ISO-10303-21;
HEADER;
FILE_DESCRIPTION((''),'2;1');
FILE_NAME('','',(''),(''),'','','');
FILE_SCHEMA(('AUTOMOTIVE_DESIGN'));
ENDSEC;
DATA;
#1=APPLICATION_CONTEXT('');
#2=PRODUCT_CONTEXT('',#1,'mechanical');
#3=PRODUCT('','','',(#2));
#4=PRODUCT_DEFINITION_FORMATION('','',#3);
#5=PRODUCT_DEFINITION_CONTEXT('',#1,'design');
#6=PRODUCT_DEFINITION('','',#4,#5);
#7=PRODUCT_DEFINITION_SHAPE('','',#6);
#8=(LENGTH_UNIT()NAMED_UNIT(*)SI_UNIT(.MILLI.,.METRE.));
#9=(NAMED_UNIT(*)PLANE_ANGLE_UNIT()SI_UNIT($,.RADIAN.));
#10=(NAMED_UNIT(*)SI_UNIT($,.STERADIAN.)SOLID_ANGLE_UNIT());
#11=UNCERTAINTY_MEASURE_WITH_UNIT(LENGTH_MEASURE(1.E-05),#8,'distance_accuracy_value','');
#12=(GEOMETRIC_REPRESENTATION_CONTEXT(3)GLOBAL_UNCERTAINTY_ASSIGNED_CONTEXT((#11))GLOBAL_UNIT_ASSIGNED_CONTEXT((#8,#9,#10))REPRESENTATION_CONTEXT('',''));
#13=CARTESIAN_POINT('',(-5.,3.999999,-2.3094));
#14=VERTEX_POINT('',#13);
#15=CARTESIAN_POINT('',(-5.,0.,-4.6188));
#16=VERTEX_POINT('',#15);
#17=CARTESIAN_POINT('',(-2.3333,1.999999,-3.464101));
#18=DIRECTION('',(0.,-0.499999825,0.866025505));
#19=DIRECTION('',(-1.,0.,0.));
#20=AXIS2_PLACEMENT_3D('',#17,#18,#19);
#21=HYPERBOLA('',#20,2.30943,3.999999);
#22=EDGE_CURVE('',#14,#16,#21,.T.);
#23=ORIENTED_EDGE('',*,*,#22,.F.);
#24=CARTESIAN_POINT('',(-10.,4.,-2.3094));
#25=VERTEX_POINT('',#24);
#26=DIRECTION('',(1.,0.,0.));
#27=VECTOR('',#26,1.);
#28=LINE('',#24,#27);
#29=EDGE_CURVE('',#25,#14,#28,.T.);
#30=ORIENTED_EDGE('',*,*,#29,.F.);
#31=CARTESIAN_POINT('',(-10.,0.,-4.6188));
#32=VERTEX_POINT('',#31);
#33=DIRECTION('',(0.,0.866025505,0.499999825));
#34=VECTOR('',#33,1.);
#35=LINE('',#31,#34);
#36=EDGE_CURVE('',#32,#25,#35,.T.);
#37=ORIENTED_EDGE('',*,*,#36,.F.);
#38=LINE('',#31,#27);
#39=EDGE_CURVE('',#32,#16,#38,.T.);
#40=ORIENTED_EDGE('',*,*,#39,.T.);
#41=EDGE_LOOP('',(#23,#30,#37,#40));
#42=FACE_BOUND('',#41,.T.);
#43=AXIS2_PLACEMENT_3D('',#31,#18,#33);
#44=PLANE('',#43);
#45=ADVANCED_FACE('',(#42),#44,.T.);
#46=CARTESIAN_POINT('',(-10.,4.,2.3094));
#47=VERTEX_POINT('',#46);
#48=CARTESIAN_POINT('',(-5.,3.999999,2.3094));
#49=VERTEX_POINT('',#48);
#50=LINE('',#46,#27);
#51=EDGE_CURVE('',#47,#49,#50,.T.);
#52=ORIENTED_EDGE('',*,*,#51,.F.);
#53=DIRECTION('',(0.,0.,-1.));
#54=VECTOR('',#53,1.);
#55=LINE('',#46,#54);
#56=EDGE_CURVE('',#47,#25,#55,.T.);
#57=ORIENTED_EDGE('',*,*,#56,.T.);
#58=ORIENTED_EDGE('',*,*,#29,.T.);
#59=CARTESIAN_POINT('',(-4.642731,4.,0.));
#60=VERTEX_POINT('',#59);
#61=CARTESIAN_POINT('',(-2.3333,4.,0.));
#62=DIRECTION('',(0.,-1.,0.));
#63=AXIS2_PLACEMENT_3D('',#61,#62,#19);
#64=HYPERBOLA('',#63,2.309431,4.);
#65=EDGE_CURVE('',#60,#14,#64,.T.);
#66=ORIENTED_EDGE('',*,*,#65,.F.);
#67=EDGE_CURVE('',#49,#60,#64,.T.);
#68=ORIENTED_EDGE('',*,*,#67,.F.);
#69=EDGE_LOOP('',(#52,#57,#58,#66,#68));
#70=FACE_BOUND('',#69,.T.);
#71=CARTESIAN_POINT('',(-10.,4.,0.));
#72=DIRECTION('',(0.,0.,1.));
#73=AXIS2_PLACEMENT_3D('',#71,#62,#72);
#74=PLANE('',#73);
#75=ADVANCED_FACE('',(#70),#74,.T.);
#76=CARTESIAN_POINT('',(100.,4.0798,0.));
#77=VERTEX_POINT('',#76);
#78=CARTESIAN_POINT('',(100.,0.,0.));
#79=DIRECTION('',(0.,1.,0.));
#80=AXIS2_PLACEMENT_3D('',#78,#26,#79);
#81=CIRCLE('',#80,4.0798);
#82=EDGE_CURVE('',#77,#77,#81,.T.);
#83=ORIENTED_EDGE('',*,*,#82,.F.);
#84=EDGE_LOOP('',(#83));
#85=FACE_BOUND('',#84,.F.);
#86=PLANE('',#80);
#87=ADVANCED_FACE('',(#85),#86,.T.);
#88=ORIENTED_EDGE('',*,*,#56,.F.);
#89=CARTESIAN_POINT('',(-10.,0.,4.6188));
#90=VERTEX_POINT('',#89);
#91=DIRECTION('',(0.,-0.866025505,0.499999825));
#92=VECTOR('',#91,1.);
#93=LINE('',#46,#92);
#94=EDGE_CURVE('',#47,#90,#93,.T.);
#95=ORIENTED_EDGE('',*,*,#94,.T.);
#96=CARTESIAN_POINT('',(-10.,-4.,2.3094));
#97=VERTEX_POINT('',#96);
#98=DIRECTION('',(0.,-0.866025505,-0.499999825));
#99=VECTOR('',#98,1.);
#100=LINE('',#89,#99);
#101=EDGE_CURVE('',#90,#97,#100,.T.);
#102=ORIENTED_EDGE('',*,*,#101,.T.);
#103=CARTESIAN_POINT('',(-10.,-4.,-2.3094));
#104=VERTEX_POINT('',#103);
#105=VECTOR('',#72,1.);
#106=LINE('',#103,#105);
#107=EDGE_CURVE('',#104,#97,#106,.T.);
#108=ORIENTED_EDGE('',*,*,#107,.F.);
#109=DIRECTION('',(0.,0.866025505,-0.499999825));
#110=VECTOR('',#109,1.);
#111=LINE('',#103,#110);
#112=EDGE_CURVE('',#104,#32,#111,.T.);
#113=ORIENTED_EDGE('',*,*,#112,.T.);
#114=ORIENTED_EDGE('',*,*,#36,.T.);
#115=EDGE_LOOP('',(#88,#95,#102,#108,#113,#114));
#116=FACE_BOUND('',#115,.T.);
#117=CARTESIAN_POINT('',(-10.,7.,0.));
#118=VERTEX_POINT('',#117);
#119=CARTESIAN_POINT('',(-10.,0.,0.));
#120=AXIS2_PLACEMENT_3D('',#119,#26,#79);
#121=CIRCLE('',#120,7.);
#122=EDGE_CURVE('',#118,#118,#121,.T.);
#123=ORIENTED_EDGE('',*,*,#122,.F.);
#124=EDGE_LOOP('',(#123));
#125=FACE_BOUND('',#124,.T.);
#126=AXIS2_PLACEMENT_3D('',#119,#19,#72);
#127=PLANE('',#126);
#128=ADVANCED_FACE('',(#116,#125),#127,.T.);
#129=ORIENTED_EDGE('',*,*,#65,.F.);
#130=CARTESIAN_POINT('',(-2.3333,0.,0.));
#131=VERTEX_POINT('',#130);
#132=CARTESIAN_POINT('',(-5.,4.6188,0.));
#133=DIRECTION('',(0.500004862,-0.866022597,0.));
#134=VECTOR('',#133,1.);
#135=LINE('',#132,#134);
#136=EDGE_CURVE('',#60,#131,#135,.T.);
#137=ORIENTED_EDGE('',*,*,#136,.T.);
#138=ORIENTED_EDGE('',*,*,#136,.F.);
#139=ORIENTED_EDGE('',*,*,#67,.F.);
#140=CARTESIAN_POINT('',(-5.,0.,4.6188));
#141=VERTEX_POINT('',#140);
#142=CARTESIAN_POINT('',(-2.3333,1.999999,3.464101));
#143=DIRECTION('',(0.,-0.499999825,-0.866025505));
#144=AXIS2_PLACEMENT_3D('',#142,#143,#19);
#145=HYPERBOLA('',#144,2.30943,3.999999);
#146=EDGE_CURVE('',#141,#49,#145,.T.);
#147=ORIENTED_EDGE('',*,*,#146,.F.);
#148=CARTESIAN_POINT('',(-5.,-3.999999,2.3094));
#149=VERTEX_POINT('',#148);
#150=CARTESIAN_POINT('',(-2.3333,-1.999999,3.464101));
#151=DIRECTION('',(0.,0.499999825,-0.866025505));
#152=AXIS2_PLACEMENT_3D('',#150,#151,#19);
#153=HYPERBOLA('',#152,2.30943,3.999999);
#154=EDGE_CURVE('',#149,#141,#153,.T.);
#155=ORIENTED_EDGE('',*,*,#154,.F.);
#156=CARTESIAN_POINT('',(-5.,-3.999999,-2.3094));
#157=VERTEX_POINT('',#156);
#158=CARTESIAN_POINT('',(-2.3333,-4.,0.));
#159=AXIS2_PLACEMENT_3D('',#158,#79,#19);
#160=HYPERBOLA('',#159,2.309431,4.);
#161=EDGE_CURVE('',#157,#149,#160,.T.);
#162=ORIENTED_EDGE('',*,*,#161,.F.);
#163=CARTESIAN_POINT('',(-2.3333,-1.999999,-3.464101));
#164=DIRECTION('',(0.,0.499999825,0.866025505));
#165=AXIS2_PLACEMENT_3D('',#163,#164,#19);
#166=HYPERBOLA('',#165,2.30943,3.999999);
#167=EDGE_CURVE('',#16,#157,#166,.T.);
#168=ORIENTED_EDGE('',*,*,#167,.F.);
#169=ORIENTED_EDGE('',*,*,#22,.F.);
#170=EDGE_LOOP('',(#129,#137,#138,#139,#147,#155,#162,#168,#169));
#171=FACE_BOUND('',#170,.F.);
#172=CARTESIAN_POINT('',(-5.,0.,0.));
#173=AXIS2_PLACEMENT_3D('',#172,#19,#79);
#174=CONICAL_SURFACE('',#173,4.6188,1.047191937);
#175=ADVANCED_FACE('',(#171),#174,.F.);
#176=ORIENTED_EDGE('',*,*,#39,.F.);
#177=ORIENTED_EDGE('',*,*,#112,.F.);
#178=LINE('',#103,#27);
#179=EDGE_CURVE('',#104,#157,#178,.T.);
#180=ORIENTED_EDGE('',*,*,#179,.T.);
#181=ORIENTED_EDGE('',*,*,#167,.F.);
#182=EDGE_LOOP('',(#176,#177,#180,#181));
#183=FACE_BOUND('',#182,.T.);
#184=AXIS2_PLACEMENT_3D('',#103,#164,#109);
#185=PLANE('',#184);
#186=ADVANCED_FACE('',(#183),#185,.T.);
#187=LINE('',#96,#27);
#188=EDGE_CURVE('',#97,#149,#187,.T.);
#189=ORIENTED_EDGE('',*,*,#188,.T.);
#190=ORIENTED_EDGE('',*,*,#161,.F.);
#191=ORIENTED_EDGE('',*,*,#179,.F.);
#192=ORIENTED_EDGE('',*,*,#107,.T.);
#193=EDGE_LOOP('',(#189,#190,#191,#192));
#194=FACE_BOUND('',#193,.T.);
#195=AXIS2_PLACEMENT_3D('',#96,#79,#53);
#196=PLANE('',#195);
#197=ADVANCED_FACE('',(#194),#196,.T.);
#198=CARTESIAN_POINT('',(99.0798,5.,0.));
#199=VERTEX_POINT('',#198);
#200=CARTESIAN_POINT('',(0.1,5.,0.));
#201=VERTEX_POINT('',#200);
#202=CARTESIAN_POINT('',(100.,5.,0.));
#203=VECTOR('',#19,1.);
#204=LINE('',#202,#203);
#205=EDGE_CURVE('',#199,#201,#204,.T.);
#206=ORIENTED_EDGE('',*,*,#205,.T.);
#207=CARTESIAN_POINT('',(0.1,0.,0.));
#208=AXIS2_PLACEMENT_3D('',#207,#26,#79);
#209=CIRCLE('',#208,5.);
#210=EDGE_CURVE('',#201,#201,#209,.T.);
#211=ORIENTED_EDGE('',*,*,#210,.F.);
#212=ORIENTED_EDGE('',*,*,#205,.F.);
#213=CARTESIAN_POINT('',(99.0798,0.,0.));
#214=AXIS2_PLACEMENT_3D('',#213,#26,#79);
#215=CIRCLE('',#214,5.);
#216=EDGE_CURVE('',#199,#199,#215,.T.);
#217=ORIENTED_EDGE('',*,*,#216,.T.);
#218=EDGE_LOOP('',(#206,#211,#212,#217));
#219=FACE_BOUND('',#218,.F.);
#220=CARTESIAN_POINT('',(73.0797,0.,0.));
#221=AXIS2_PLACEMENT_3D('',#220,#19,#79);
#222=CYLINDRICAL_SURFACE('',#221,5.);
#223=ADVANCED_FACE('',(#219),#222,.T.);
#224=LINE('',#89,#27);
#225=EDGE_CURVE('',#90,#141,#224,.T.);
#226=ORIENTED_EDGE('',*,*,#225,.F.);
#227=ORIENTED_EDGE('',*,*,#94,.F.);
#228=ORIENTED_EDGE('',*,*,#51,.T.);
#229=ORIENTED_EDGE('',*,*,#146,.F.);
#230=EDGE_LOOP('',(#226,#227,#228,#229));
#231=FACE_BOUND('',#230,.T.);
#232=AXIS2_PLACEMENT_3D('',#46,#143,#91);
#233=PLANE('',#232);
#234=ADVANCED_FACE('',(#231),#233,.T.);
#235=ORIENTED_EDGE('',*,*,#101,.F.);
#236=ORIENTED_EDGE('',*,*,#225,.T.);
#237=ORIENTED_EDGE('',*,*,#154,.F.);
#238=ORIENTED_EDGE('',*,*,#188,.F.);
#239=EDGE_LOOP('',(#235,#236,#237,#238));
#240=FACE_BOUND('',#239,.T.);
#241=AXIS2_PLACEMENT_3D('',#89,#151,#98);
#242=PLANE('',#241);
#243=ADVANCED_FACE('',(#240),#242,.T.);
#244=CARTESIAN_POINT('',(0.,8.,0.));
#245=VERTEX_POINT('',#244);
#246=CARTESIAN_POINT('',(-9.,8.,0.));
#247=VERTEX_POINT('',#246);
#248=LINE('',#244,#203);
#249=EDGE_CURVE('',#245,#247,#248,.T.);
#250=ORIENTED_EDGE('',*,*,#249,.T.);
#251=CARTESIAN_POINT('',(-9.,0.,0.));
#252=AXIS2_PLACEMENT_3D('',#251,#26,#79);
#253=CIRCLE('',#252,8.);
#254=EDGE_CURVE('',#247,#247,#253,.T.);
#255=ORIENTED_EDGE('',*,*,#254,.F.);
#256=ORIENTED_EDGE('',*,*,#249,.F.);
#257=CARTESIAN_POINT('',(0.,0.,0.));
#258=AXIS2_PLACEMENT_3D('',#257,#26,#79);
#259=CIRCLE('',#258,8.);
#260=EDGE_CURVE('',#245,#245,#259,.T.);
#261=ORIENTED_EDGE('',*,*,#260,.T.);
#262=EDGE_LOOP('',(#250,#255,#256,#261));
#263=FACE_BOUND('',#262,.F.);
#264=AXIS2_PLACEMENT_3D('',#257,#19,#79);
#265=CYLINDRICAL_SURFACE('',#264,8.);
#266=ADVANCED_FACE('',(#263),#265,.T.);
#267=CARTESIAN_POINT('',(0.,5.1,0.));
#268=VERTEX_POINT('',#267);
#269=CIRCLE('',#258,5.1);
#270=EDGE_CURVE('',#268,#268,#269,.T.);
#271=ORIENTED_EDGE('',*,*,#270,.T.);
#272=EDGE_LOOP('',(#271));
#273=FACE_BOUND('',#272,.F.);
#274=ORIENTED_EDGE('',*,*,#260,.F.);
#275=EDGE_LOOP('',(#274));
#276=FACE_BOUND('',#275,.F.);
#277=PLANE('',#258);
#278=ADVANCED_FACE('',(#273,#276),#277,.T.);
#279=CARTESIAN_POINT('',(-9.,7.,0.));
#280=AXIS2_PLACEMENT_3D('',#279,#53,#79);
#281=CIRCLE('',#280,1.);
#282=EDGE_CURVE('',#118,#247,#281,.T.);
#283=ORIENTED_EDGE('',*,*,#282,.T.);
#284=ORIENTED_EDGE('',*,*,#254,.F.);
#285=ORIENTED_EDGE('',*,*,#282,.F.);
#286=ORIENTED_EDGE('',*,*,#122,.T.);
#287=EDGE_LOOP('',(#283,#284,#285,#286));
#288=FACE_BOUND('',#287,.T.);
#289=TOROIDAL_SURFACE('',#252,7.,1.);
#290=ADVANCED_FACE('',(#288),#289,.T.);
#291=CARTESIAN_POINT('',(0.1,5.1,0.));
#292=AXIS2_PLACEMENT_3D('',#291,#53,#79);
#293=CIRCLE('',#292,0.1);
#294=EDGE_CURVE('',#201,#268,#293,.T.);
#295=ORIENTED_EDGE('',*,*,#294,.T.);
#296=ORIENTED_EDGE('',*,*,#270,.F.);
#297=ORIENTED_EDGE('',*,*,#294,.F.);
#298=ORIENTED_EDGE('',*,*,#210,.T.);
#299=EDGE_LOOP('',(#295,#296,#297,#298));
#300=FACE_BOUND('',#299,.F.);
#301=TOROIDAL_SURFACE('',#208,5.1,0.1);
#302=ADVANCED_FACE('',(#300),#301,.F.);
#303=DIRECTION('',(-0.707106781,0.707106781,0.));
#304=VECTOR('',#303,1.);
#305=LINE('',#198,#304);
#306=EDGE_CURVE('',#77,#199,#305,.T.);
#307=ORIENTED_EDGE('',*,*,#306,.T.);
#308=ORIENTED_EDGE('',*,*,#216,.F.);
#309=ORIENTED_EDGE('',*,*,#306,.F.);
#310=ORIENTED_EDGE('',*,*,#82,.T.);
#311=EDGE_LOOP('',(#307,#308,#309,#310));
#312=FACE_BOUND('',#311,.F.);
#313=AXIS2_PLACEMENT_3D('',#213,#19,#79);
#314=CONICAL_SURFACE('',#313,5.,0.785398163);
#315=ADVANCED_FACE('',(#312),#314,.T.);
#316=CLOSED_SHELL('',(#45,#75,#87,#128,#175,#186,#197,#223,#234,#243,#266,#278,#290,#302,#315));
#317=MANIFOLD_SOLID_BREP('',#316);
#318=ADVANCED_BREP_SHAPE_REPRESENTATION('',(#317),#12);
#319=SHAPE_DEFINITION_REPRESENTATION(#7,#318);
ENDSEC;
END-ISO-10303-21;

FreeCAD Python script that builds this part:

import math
import FreeCAD as App
import Part
import Sketcher

V = App.Vector
Q = App.Units.Quantity


def edges_at(feature, points):
    """Names of the edges that pass closest to the given points."""
    edges = feature.Shape.Edges
    near = lambda p: min(range(len(edges)), key=lambda i: edges[i].distToShape(Part.Vertex(*p))[0])
    return sorted({f"Edge{near(p) + 1}" for p in points})

doc = App.newDocument("Part")
body = doc.addObject("PartDesign::Body", "Body")

# Sketch on XY plane
sketch1 = doc.addObject("Sketcher::SketchObject", "Sketch")
body.addObject(sketch1)
sketch1.AttachmentSupport = (doc.XY_Plane, [""])
sketch1.MapMode = "FlatFace"
sketch1.addGeometry([
    Part.LineSegment(V(-5, 4.6, 0), V(-2.3, 0, 0)),  # 0
    Part.LineSegment(V(-2.3, 0, 0), V(100, 0, 0)),  # 1
    Part.LineSegment(V(100, 0, 0), V(100, 5, 0)),  # 2
    Part.LineSegment(V(100, 5, 0), V(0, 5, 0)),  # 3
    Part.LineSegment(V(0, 5, 0), V(0, 8, 0)),  # 4
    Part.LineSegment(V(0, 8, 0), V(-10, 8, 0)),  # 5
    Part.LineSegment(V(-10, 8, 0), V(-10, 4.6, 0)),  # 6
    Part.LineSegment(V(-10, 4.6, 0), V(-5, 4.6, 0)),  # 7
], False)
sketch1.addConstraint([
    Sketcher.Constraint("Coincident", 0, 2, 1, 1),
    Sketcher.Constraint("Coincident", 1, 2, 2, 1),
    Sketcher.Constraint("Coincident", 2, 2, 3, 1),
    Sketcher.Constraint("Coincident", 3, 2, 4, 1),
    Sketcher.Constraint("Coincident", 4, 2, 5, 1),
    Sketcher.Constraint("Coincident", 5, 2, 6, 1),
    Sketcher.Constraint("Coincident", 6, 2, 7, 1),
    Sketcher.Constraint("Coincident", 7, 2, 0, 1),
    Sketcher.Constraint("Horizontal", 1),
    Sketcher.Constraint("Vertical", 2),
    Sketcher.Constraint("Horizontal", 3),
    Sketcher.Constraint("Vertical", 4),
    Sketcher.Constraint("Horizontal", 5),
    Sketcher.Constraint("Vertical", 6),
    Sketcher.Constraint("Horizontal", 7),
    Sketcher.Constraint("PointOnObject", 0, 2, -1),
    Sketcher.Constraint("PointOnObject", 3, 2, -2),
    Sketcher.Constraint("Equal", 7, 2),
    Sketcher.Constraint("DistanceX", 3, 2, 3, 1, Q("100 mm")),
    Sketcher.Constraint("DistanceX", 5, 2, 5, 1, Q("10 mm")),
    Sketcher.Constraint("DistanceX", 7, 1, 7, 2, Q("5 mm")),
    Sketcher.Constraint("Angle", 0, Q("-59.9997 deg")),
    Sketcher.Constraint("DistanceY", 4, 1, 4, 2, Q("3 mm")),
    Sketcher.Constraint("DistanceX", 1, 1, 1, 2, Q("102.3333 mm")),
])
revolution = doc.addObject("PartDesign::Revolution", "Revolution")
body.addObject(revolution)
revolution.Profile = sketch1
revolution.ReferenceAxis = (sketch1, ["H_Axis"])
revolution.Angle = 360

# Sketch on YZ plane
sketch2 = doc.addObject("Sketcher::SketchObject", "Sketch001")
body.addObject(sketch2)
sketch2.AttachmentSupport = (doc.YZ_Plane, [""])
sketch2.MapMode = "FlatFace"
sketch2.AttachmentOffset = App.Placement(V(0, 0, -10), App.Rotation())
sketch2.addGeometry([
    Part.LineSegment(V(4, 2.3, 0), V(0, 4.6, 0)),  # 0
    Part.ArcOfCircle(Part.Circle(V(0, 0, 0), V(0, 0, 1), 4.6), math.radians(30), math.radians(90)),  # 1
    Part.ArcOfCircle(Part.Circle(V(0, 0, 0), V(0, 0, 1), 4.6), math.radians(90), math.radians(150)),  # 2
    Part.LineSegment(V(0, 4.6, 0), V(-4, 2.3, 0)),  # 3
    Part.ArcOfCircle(Part.Circle(V(0, 0, 0), V(0, 0, 1), 4.6), math.radians(-30), math.radians(30)),  # 4
    Part.LineSegment(V(4, 2.3, 0), V(4, -2.3, 0)),  # 5
    Part.LineSegment(V(-4, 2.3, 0), V(-4, -2.3, 0)),  # 6
    Part.ArcOfCircle(Part.Circle(V(0, 0, 0), V(0, 0, 1), 4.6), math.radians(150), math.radians(210)),  # 7
    Part.LineSegment(V(-4, -2.3, 0), V(0, -4.6, 0)),  # 8
    Part.ArcOfCircle(Part.Circle(V(0, 0, 0), V(0, 0, 1), 4.6), math.radians(-150), math.radians(-90)),  # 9
    Part.ArcOfCircle(Part.Circle(V(0, 0, 0), V(0, 0, 1), 4.6), math.radians(-90), math.radians(-30)),  # 10
    Part.LineSegment(V(0, -4.6, 0), V(4, -2.3, 0)),  # 11
], False)
sketch2.addConstraint([
    Sketcher.Constraint("Coincident", 0, 1, 1, 1),
    Sketcher.Constraint("Coincident", 1, 2, 0, 2),
    Sketcher.Constraint("Coincident", 2, 1, 3, 1),
    Sketcher.Constraint("Coincident", 3, 2, 2, 2),
    Sketcher.Constraint("Coincident", 4, 1, 5, 2),
    Sketcher.Constraint("Coincident", 5, 1, 4, 2),
    Sketcher.Constraint("Coincident", 6, 1, 7, 1),
    Sketcher.Constraint("Coincident", 7, 2, 6, 2),
    Sketcher.Constraint("Coincident", 8, 1, 9, 1),
    Sketcher.Constraint("Coincident", 9, 2, 8, 2),
    Sketcher.Constraint("Coincident", 10, 1, 11, 1),
    Sketcher.Constraint("Coincident", 11, 2, 10, 2),
    Sketcher.Constraint("Vertical", 5),
    Sketcher.Constraint("Vertical", 6),
    Sketcher.Constraint("Coincident", 1, 3, -1, 1),
    Sketcher.Constraint("Coincident", 2, 3, -1, 1),
    Sketcher.Constraint("Coincident", 4, 3, -1, 1),
    Sketcher.Constraint("Coincident", 7, 3, -1, 1),
    Sketcher.Constraint("Coincident", 9, 3, -1, 1),
    Sketcher.Constraint("Coincident", 10, 3, -1, 1),
    Sketcher.Constraint("Coincident", 2, 1, 1, 2),
    Sketcher.Constraint("Coincident", 5, 1, 0, 1),
    Sketcher.Constraint("Coincident", 6, 1, 3, 2),
    Sketcher.Constraint("Coincident", 8, 1, 7, 2),
    Sketcher.Constraint("Coincident", 10, 1, 9, 2),
    Sketcher.Constraint("PointOnObject", 1, 2, -2),
    Sketcher.Constraint("PointOnObject", 9, 2, -2),
    Sketcher.Constraint("Parallel", 0, 8),
    Sketcher.Constraint("Parallel", 3, 11),
    Sketcher.Constraint("Angle", 0, Q("150 deg")),
    Sketcher.Constraint("DistanceX", -1, 1, 0, 1, Q("4 mm")),
])
pad1 = doc.addObject("PartDesign::Pad", "Pad")
body.addObject(pad1)
pad1.Profile = sketch2
pad1.Type = "UpToFirst"
doc.recompute()

fillet = doc.addObject("PartDesign::Fillet", "Fillet")
body.addObject(fillet)
fillet.Base = (pad1, edges_at(pad1, [(-10, -8, 0)]))
fillet.Radius = 1
doc.recompute()

chamfer = doc.addObject("PartDesign::Chamfer", "Chamfer")
body.addObject(chamfer)
chamfer.Base = (fillet, edges_at(fillet, [(100, -5, 0)]))
chamfer.ChamferType = "Two distances"
chamfer.Size = 0.9202
chamfer.Size2 = 0.9202
doc.recompute()

fillet2 = doc.addObject("PartDesign::Fillet", "Fillet001")
body.addObject(fillet2)
fillet2.Base = (chamfer, edges_at(chamfer, [(0, -5, 0)]))
fillet2.Radius = 0.1

doc.recompute()
